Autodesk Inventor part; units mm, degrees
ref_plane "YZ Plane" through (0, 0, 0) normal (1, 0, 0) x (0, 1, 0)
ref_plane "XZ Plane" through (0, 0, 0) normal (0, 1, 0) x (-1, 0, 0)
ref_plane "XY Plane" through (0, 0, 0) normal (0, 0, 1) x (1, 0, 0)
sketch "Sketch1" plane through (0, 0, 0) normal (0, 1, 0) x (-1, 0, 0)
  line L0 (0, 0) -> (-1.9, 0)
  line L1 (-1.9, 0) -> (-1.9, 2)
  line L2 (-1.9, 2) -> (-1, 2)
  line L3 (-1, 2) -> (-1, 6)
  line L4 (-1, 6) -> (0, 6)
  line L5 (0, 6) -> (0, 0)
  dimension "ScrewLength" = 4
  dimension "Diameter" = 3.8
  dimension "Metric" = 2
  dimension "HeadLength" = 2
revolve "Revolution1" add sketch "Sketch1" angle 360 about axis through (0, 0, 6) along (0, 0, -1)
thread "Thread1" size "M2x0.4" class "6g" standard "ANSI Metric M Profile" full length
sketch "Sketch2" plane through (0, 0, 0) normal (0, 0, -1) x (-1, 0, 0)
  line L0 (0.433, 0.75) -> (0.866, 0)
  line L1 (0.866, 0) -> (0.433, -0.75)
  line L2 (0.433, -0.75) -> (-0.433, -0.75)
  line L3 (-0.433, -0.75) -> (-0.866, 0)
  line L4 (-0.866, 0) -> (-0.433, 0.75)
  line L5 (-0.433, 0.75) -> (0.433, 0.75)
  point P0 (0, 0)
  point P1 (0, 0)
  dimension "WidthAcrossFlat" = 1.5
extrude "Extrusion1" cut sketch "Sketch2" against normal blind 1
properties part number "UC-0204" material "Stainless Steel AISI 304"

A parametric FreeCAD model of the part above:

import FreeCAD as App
import Part
import Sketcher

V = App.Vector
Q = App.Units.Quantity


def add_polygon(sketch, points):
    """Adds a closed chain of lines whose ends are joined by coincident constraints."""
    first, n = sketch.GeometryCount, len(points)
    for a, b in zip(points, points[1:] + points[:1]):
        sketch.addGeometry(Part.LineSegment(App.Vector(*a, 0), App.Vector(*b, 0)), False)
    for i in range(n):
        sketch.addConstraint(Sketcher.Constraint("Coincident", first + i, 2, first + (i + 1) % n, 1))

doc = App.newDocument("Part")
body = doc.addObject("PartDesign::Body", "Body")

# Sketch on XZ plane
sketch1 = doc.addObject("Sketcher::SketchObject", "Sketch")
body.addObject(sketch1)
sketch1.AttachmentSupport = (doc.XZ_Plane, [""])
sketch1.MapMode = "FlatFace"
add_polygon(sketch1, [(1.9, 0), (0, 0), (0, 6), (1, 6), (1, 2), (1.9, 2)])  # lines 0-5
sketch1.addConstraint(Sketcher.Constraint("Horizontal", 0))
sketch1.addConstraint(Sketcher.Constraint("Vertical", 1))
sketch1.addConstraint(Sketcher.Constraint("Horizontal", 2))
sketch1.addConstraint(Sketcher.Constraint("Vertical", 3))
sketch1.addConstraint(Sketcher.Constraint("Horizontal", 4))
sketch1.addConstraint(Sketcher.Constraint("Vertical", 5))
sketch1.addConstraint(Sketcher.Constraint("Coincident", 0, 2, -1, 1))
sketch1.addConstraint(Sketcher.Constraint("DistanceY", 3, 2, 3, 1, Q("4 mm")))
sketch1.addConstraint(Sketcher.Constraint("DistanceY", 5, 2, 5, 1, Q("2 mm")))
sketch1.addConstraint(Sketcher.Constraint("DistanceX", 2, 1, 2, 2, Q("1 mm")))
sketch1.addConstraint(Sketcher.Constraint("DistanceX", 0, 2, 0, 1, Q("1.9 mm")))
revolution = doc.addObject("PartDesign::Revolution", "Revolution")
body.addObject(revolution)
revolution.Profile = sketch1
revolution.ReferenceAxis = (sketch1, ["V_Axis"])
revolution.Angle = 360

# Sketch on XY plane
sketch2 = doc.addObject("Sketcher::SketchObject", "Sketch001")
body.addObject(sketch2)
sketch2.AttachmentSupport = (doc.XY_Plane, [""])
sketch2.MapMode = "FlatFace"
add_polygon(sketch2, [(-0.9, 0), (-0.4, 0.8), (0.4, 0.8), (0.9, 0), (0.4, -0.8), (-0.4, -0.8)])  # lines 0-5
sketch2.addConstraint(Sketcher.Constraint("Horizontal", 1))
sketch2.addConstraint(Sketcher.Constraint("Horizontal", 4))
sketch2.addConstraint(Sketcher.Constraint("Symmetric", 0, 2, 3, 2, -1, 1))
sketch2.addConstraint(Sketcher.Constraint("Symmetric", 2, 2, 5, 2, -1, 1))
sketch2.addConstraint(Sketcher.Constraint("PointOnObject", 2, 2, -1))
sketch2.addConstraint(Sketcher.Constraint("Parallel", 2, 5))
sketch2.addConstraint(Sketcher.Constraint("Vertical", 1, 2, 3, 2))
sketch2.addConstraint(Sketcher.Constraint("DistanceY", 3, 2, 1, 2, Q("1.5 mm")))
sketch2.addConstraint(Sketcher.Constraint("Angle", 0, Q("60.0007 deg")))
sketch2.addConstraint(Sketcher.Constraint("DistanceX", 1, 1, 1, 2, Q("0.866 mm")))
pocket1 = doc.addObject("PartDesign::Pocket", "Pocket")
body.addObject(pocket1)
pocket1.Profile = sketch2
pocket1.Length = 1
pocket1.Reversed = True

doc.recompute()
